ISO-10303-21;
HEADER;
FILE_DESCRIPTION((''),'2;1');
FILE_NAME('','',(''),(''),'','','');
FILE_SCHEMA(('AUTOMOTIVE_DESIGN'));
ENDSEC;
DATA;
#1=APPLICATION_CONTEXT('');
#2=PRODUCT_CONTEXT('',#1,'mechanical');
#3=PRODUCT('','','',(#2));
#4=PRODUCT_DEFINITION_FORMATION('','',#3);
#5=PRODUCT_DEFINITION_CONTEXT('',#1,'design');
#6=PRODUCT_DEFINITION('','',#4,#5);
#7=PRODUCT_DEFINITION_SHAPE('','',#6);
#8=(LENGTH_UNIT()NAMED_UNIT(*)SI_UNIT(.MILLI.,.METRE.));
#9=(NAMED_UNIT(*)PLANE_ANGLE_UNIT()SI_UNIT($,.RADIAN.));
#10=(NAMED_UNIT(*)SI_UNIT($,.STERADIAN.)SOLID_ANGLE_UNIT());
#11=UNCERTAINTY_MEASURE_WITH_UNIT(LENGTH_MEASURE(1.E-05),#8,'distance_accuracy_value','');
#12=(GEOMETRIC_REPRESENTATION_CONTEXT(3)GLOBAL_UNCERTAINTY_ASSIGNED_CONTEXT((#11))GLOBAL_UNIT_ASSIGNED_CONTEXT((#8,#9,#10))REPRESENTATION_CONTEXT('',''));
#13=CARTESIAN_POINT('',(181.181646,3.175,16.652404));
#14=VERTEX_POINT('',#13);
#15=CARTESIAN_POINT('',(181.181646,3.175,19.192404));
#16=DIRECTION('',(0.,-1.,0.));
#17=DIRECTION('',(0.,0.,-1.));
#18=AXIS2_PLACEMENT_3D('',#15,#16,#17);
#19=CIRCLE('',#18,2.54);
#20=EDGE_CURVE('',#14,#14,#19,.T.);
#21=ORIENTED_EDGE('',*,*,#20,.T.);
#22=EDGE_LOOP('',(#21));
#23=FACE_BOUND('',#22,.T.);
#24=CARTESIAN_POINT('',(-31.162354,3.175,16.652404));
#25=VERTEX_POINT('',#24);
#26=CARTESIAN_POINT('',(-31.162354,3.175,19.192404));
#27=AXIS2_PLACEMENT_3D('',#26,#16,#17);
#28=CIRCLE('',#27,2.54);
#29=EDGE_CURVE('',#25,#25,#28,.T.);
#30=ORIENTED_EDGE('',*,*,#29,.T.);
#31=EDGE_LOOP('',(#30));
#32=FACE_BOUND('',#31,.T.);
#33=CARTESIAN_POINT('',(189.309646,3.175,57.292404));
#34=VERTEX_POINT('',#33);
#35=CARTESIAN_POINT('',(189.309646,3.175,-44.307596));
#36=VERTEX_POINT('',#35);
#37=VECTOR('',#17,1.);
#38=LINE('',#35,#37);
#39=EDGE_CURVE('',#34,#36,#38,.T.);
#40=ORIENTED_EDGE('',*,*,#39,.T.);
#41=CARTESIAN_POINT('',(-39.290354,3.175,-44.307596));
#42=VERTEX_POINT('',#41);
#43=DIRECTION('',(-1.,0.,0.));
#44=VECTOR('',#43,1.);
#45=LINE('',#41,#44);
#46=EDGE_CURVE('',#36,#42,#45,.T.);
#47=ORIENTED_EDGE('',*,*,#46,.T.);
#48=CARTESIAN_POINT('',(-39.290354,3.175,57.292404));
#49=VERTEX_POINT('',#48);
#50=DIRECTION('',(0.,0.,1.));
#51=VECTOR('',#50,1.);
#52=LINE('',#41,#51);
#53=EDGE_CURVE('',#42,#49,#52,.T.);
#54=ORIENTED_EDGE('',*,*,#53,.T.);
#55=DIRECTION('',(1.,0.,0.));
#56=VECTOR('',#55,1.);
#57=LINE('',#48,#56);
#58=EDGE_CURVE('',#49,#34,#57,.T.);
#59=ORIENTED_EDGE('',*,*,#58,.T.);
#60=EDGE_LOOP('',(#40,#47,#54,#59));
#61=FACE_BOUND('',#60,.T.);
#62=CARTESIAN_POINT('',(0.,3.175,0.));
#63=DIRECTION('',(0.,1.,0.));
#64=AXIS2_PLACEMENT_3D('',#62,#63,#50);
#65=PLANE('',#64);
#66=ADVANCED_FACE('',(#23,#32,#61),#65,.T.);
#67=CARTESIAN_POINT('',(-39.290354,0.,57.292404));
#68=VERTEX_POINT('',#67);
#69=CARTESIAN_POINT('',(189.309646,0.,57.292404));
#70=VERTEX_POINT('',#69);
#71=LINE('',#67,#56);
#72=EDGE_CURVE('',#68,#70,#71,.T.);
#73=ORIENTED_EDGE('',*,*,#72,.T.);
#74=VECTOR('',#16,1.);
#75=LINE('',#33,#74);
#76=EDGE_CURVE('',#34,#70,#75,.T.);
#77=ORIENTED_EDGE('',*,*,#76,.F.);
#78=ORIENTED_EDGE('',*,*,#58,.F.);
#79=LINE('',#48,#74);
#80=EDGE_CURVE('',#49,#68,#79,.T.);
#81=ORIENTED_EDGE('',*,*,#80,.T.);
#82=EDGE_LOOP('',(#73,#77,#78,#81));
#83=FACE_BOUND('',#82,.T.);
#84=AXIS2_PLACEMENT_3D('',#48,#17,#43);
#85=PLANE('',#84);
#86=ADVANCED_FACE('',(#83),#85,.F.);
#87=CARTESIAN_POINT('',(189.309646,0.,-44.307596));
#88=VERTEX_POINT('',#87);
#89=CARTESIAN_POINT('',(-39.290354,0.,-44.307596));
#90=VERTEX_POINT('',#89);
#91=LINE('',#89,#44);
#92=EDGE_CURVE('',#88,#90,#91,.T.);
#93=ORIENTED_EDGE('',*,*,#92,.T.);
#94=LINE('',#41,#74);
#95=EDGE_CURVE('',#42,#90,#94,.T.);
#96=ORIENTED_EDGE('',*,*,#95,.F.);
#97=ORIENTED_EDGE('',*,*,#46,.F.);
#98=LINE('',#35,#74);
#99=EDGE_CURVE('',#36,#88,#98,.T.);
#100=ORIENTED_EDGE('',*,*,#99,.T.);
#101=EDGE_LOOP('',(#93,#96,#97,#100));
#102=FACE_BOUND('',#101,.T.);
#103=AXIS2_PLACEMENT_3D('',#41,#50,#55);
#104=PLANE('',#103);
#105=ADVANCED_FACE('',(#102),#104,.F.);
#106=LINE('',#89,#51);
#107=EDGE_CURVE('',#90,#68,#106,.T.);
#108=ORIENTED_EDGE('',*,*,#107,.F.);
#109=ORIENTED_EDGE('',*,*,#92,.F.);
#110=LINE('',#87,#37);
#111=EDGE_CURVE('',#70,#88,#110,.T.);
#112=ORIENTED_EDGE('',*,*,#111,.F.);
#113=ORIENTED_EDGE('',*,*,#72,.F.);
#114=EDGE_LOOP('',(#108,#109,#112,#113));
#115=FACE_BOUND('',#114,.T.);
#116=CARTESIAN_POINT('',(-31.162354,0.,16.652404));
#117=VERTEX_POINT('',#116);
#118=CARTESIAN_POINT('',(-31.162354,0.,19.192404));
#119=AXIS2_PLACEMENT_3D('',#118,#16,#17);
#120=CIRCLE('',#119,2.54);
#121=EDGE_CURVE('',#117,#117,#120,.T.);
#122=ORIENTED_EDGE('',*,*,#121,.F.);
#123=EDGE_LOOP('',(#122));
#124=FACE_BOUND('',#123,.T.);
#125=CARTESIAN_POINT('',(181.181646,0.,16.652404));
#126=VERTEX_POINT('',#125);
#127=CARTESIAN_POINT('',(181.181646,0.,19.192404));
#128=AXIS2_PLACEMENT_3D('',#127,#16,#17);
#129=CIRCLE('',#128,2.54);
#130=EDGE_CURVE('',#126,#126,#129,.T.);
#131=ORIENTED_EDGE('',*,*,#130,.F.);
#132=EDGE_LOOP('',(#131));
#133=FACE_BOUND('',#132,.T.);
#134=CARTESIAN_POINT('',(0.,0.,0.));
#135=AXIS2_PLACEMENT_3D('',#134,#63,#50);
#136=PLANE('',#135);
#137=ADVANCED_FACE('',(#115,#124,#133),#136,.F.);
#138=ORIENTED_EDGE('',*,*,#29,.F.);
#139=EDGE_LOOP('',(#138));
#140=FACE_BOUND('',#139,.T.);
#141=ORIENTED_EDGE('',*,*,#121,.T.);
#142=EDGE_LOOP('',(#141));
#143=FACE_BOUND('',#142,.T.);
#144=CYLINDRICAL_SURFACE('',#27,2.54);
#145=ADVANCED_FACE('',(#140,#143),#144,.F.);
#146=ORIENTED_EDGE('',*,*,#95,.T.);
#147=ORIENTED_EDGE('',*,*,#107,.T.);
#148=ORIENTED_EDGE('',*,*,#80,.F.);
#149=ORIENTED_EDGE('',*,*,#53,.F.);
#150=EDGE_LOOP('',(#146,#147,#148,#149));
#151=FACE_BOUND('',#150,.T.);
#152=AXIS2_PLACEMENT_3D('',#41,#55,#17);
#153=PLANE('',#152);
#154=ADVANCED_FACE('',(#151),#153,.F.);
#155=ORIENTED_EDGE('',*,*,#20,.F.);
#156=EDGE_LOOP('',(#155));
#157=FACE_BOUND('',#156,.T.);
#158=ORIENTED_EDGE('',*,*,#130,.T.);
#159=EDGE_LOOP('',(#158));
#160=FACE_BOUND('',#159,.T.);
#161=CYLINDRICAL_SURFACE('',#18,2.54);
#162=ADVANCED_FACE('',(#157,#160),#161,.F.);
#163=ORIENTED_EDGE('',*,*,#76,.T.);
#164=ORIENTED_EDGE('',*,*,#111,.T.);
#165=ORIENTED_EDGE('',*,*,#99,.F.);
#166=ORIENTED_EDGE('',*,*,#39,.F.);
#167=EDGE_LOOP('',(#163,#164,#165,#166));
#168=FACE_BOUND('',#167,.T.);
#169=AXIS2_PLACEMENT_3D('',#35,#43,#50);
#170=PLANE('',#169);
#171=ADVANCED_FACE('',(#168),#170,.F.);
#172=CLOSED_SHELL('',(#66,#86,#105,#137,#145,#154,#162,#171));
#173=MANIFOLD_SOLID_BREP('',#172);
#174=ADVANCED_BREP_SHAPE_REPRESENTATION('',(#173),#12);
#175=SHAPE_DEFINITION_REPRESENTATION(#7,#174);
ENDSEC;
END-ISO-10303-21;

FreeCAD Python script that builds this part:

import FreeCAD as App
import Part
import Sketcher

V = App.Vector
Q = App.Units.Quantity


def add_polygon(sketch, points):
    """Adds a closed chain of lines whose ends are joined by coincident constraints."""
    first, n = sketch.GeometryCount, len(points)
    for a, b in zip(points, points[1:] + points[:1]):
        sketch.addGeometry(Part.LineSegment(App.Vector(*a, 0), App.Vector(*b, 0)), False)
    for i in range(n):
        sketch.addConstraint(Sketcher.Constraint("Coincident", first + i, 2, first + (i + 1) % n, 1))

doc = App.newDocument("Part")
body = doc.addObject("PartDesign::Body", "Body")

# Sketch on XZ plane
sketch1 = doc.addObject("Sketcher::SketchObject", "Sketch")
body.addObject(sketch1)
sketch1.AttachmentSupport = (doc.XZ_Plane, [""])
sketch1.MapMode = "FlatFace"
add_polygon(sketch1, [(-39, -44), (-39, 57), (189, 57), (189, -44)])  # lines 0-3
sketch1.addConstraint([
    Sketcher.Constraint("Vertical", 0),
    Sketcher.Constraint("Horizontal", 1),
    Sketcher.Constraint("Vertical", 2),
    Sketcher.Constraint("Horizontal", 3),
    Sketcher.Constraint("DistanceX", 1, 1, 1, 2, Q("9 in")),
    Sketcher.Constraint("DistanceY", 0, 1, 0, 2, Q("4 in")),
    Sketcher.Constraint("DistanceX", 0, 2, -1, 1, 39.290354),
    Sketcher.Constraint("DistanceY", -1, 1, 0, 2, 57.292403),
])
pad1 = doc.addObject("PartDesign::Pad", "Pad")
body.addObject(pad1)
pad1.Profile = sketch1
pad1.Length = Q("0.125 in")
pad1.Reversed = True

# Sketch on XZ plane
sketch2 = doc.addObject("Sketcher::SketchObject", "Sketch001")
body.addObject(sketch2)
sketch2.AttachmentSupport = (doc.XZ_Plane, [""])
sketch2.MapMode = "FlatFace"
sketch2.addGeometry([
    Part.Circle(V(-31.2, 19.2, 0), V(0, 0, 1), 2.5),
    Part.Circle(V(181.2, 19.2, 0), V(0, 0, 1), 2.5),
], False)
sketch2.addConstraint([
    Sketcher.Constraint("Equal", 0, 1),
    Sketcher.Constraint("Horizontal", 0, 3, 1, 3),
    Sketcher.Constraint("Diameter", 0, Q("0.2 in")),
    Sketcher.Constraint("DistanceX", 0, 3, 1, 3, Q("8.36 in")),
    Sketcher.Constraint("DistanceX", 0, 3, -1, 1, 31.162354),
    Sketcher.Constraint("DistanceY", -1, 1, 0, 3, 19.192404),
])
pocket1 = doc.addObject("PartDesign::Pocket", "Pocket")
body.addObject(pocket1)
pocket1.Profile = sketch2
pocket1.Length = Q("0.125 in")

doc.recompute()
